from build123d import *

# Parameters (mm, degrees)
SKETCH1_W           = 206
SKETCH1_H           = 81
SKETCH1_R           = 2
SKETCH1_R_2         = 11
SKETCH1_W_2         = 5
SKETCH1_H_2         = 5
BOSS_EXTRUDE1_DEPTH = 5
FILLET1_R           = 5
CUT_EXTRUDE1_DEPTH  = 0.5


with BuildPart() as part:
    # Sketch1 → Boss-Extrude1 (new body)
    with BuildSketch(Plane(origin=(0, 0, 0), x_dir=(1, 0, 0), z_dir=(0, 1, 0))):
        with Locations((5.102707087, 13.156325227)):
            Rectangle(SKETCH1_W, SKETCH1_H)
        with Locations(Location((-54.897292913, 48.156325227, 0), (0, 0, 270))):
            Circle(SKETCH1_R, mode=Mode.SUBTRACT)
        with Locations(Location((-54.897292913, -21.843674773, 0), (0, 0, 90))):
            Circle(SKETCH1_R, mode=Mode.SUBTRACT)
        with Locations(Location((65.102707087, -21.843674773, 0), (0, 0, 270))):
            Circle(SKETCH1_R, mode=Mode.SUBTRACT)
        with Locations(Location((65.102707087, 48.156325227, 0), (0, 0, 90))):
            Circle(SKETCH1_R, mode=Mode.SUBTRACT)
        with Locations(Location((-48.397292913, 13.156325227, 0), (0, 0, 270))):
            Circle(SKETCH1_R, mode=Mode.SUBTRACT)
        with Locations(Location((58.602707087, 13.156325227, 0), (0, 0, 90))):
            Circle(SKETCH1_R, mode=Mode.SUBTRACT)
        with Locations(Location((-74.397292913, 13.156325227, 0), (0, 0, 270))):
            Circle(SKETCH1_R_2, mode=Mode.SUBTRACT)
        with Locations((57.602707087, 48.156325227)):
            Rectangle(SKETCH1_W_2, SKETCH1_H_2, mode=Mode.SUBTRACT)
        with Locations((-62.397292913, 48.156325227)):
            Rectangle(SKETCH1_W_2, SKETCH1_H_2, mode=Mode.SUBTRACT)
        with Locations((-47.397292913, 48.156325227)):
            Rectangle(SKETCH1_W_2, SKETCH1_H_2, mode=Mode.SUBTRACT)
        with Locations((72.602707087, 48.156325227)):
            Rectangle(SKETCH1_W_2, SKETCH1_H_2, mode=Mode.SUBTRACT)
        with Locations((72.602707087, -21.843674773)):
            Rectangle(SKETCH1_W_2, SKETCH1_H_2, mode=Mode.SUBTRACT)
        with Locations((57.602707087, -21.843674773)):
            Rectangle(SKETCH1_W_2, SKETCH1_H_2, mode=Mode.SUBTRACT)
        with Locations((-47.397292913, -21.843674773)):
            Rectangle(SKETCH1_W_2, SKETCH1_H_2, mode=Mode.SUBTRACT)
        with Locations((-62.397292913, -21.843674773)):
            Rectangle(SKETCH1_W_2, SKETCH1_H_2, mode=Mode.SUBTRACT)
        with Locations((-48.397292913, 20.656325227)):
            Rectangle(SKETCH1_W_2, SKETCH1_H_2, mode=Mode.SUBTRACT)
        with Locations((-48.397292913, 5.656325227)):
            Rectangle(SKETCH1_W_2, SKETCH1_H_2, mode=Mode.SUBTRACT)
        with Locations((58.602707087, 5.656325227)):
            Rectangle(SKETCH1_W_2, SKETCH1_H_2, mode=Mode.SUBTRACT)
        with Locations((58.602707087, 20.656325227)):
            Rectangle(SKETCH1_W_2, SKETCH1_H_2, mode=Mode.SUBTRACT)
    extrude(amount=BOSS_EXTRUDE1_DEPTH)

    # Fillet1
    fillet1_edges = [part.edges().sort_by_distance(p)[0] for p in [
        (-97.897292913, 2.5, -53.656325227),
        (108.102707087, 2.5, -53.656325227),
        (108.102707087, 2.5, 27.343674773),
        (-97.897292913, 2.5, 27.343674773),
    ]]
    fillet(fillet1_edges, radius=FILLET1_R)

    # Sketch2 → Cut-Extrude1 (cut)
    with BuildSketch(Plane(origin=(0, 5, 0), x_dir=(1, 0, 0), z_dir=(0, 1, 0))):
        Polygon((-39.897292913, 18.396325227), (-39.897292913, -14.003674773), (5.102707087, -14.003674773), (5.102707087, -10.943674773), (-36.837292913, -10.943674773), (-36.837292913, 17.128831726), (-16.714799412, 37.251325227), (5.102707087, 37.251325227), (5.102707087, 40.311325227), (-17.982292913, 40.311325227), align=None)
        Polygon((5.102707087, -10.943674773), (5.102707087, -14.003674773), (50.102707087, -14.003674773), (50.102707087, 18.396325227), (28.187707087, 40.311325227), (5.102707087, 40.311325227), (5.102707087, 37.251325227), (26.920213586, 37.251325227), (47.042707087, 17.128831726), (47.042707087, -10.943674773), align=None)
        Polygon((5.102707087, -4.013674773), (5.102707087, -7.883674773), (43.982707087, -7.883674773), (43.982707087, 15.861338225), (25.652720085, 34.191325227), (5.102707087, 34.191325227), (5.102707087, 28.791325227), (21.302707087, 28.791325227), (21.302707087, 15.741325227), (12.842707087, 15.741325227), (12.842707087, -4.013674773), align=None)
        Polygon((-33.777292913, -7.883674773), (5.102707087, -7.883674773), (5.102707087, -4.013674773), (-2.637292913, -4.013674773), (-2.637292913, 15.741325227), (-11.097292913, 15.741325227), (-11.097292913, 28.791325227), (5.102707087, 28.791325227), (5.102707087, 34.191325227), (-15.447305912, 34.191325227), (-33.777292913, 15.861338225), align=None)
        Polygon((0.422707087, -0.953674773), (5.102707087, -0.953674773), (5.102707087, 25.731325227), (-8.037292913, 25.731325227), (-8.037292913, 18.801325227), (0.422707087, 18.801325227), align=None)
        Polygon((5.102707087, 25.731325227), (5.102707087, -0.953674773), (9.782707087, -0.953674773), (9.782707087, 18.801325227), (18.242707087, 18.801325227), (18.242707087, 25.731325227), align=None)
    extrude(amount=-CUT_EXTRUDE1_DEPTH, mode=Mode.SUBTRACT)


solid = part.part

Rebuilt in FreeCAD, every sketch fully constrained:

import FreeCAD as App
import Part
import Sketcher
Q = App.Units.Quantity


def edges_at(feature, points):
    """Names of the edges that pass closest to the given points."""
    edges = feature.Shape.Edges
    near = lambda p: min(range(len(edges)), key=lambda i: edges[i].distToShape(Part.Vertex(*p))[0])
    return sorted({f"Edge{near(p) + 1}" for p in points})


def add_polygon(sketch, points):
    """Adds a closed chain of lines whose ends are joined by coincident constraints."""
    first, n = sketch.GeometryCount, len(points)
    for a, b in zip(points, points[1:] + points[:1]):
        sketch.addGeometry(Part.LineSegment(App.Vector(*a, 0), App.Vector(*b, 0)), False)
    for i in range(n):
        sketch.addConstraint(Sketcher.Constraint("Coincident", first + i, 2, first + (i + 1) % n, 1))

doc = App.newDocument("Part")
body = doc.addObject("PartDesign::Body", "Body")

# Sketch on XZ plane
sketch1 = body.newObject("Sketcher::SketchObject", "Sketch")
sketch1.AttachmentSupport = (doc.getObject("XZ_Plane"), [""])
sketch1.MapMode = "FlatFace"
add_polygon(sketch1, [(-97.9, -53.7), (-97.9, 27.3), (108.1, 27.3), (108.1, -53.7)])  # lines 0-3
add_polygon(sketch1, [(-59.9, 24.3), (-64.9, 24.3), (-64.9, 19.3), (-59.9, 19.3)])  # lines 4-7
sketch1.addGeometry(Part.Circle(App.Vector(-54.9, 21.8, 0), App.Vector(0, 0, 1), 2), False)  # 8
add_polygon(sketch1, [(-44.9, 24.3), (-49.9, 24.3), (-49.9, 19.3), (-44.9, 19.3)])  # lines 9-12
add_polygon(sketch1, [(-45.9, -3.2), (-50.9, -3.2), (-50.9, -8.2), (-45.9, -8.2)])  # lines 13-16
add_polygon(sketch1, [(60.1, 24.3), (55.1, 24.3), (55.1, 19.3), (60.1, 19.3)])  # lines 17-20
sketch1.addGeometry(Part.Circle(App.Vector(65.1, 21.8, 0), App.Vector(0, 0, 1), 2), False)  # 21
add_polygon(sketch1, [(75.1, 24.3), (70.1, 24.3), (70.1, 19.3), (75.1, 19.3)])  # lines 22-25
add_polygon(sketch1, [(61.1, -3.2), (56.1, -3.2), (56.1, -8.2), (61.1, -8.2)])  # lines 26-29
sketch1.addGeometry(Part.Circle(App.Vector(-74.4, -13.2, 0), App.Vector(0, 0, 1), 11), False)  # 30
sketch1.addGeometry(Part.Circle(App.Vector(-48.4, -13.2, 0), App.Vector(0, 0, 1), 2), False)  # 31
add_polygon(sketch1, [(-45.9, -18.2), (-50.9, -18.2), (-50.9, -23.2), (-45.9, -23.2)])  # lines 32-35
add_polygon(sketch1, [(-59.9, -45.7), (-64.9, -45.7), (-64.9, -50.7), (-59.9, -50.7)])  # lines 36-39
sketch1.addGeometry(Part.Circle(App.Vector(-54.9, -48.2, 0), App.Vector(0, 0, 1), 2), False)  # 40
add_polygon(sketch1, [(-44.9, -45.7), (-49.9, -45.7), (-49.9, -50.7), (-44.9, -50.7)])  # lines 41-44
sketch1.addGeometry(Part.Circle(App.Vector(58.6, -13.2, 0), App.Vector(0, 0, 1), 2), False)  # 45
add_polygon(sketch1, [(61.1, -18.2), (56.1, -18.2), (56.1, -23.2), (61.1, -23.2)])  # lines 46-49
add_polygon(sketch1, [(60.1, -45.7), (55.1, -45.7), (55.1, -50.7), (60.1, -50.7)])  # lines 50-53
sketch1.addGeometry(Part.Circle(App.Vector(65.1, -48.2, 0), App.Vector(0, 0, 1), 2), False)  # 54
add_polygon(sketch1, [(75.1, -45.7), (70.1, -45.7), (70.1, -50.7), (75.1, -50.7)])  # lines 55-58
sketch1.addConstraint([
    Sketcher.Constraint("Vertical", 0),
    Sketcher.Constraint("Horizontal", 1),
    Sketcher.Constraint("Vertical", 2),
    Sketcher.Constraint("Horizontal", 3),
    Sketcher.Constraint("Horizontal", 4),
    Sketcher.Constraint("Vertical", 5),
    Sketcher.Constraint("Horizontal", 6),
    Sketcher.Constraint("Vertical", 7),
    Sketcher.Constraint("Horizontal", 9),
    Sketcher.Constraint("Vertical", 10),
    Sketcher.Constraint("Horizontal", 11),
    Sketcher.Constraint("Vertical", 12),
    Sketcher.Constraint("Horizontal", 13),
    Sketcher.Constraint("Vertical", 14),
    Sketcher.Constraint("Horizontal", 15),
    Sketcher.Constraint("Vertical", 16),
    Sketcher.Constraint("Horizontal", 17),
    Sketcher.Constraint("Vertical", 18),
    Sketcher.Constraint("Horizontal", 19),
    Sketcher.Constraint("Vertical", 20),
    Sketcher.Constraint("Horizontal", 22),
    Sketcher.Constraint("Vertical", 23),
    Sketcher.Constraint("Horizontal", 24),
    Sketcher.Constraint("Vertical", 25),
    Sketcher.Constraint("Horizontal", 26),
    Sketcher.Constraint("Vertical", 27),
    Sketcher.Constraint("Horizontal", 28),
    Sketcher.Constraint("Vertical", 29),
    Sketcher.Constraint("Horizontal", 32),
    Sketcher.Constraint("Vertical", 33),
    Sketcher.Constraint("Horizontal", 34),
    Sketcher.Constraint("Vertical", 35),
    Sketcher.Constraint("Horizontal", 36),
    Sketcher.Constraint("Vertical", 37),
    Sketcher.Constraint("Horizontal", 38),
    Sketcher.Constraint("Vertical", 39),
    Sketcher.Constraint("Horizontal", 41),
    Sketcher.Constraint("Vertical", 42),
    Sketcher.Constraint("Horizontal", 43),
    Sketcher.Constraint("Vertical", 44),
    Sketcher.Constraint("Horizontal", 46),
    Sketcher.Constraint("Vertical", 47),
    Sketcher.Constraint("Horizontal", 48),
    Sketcher.Constraint("Vertical", 49),
    Sketcher.Constraint("Horizontal", 50),
    Sketcher.Constraint("Vertical", 51),
    Sketcher.Constraint("Horizontal", 52),
    Sketcher.Constraint("Vertical", 53),
    Sketcher.Constraint("Horizontal", 55),
    Sketcher.Constraint("Vertical", 56),
    Sketcher.Constraint("Horizontal", 57),
    Sketcher.Constraint("Vertical", 58),
    Sketcher.Constraint("Equal", 8, 21),
    Sketcher.Constraint("Equal", 21, 31),
    Sketcher.Constraint("Equal", 31, 40),
    Sketcher.Constraint("Equal", 40, 45),
    Sketcher.Constraint("Equal", 45, 54),
    Sketcher.Constraint("Horizontal", 8, 3, 21, 3),
    Sketcher.Constraint("Horizontal", 30, 3, 31, 3),
    Sketcher.Constraint("Horizontal", 31, 3, 45, 3),
    Sketcher.Constraint("Horizontal", 40, 3, 54, 3),
    Sketcher.Constraint("Horizontal", 7, 2, 9, 2),
    Sketcher.Constraint("Horizontal", 6, 2, 10, 2),
    Sketcher.Constraint("Horizontal", 12, 2, 17, 2),
    Sketcher.Constraint("Horizontal", 11, 2, 18, 2),
    Sketcher.Constraint("Horizontal", 20, 2, 22, 2),
    Sketcher.Constraint("Horizontal", 19, 2, 23, 2),
    Sketcher.Constraint("Horizontal", 16, 2, 26, 2),
    Sketcher.Constraint("Horizontal", 15, 2, 27, 2),
    Sketcher.Constraint("Horizontal", 39, 2, 41, 2),
    Sketcher.Constraint("Horizontal", 38, 2, 42, 2),
    Sketcher.Constraint("Horizontal", 35, 2, 46, 2),
    Sketcher.Constraint("Horizontal", 34, 2, 47, 2),
    Sketcher.Constraint("Horizontal", 44, 2, 50, 2),
    Sketcher.Constraint("Horizontal", 43, 2, 51, 2),
    Sketcher.Constraint("Horizontal", 53, 2, 55, 2),
    Sketcher.Constraint("Horizontal", 52, 2, 56, 2),
    Sketcher.Constraint("Vertical", 8, 3, 40, 3),
    Sketcher.Constraint("Vertical", 21, 3, 54, 3),
    Sketcher.Constraint("Vertical", 14, 2, 32, 2),
    Sketcher.Constraint("Vertical", 16, 2, 34, 2),
    Sketcher.Constraint("Vertical", 5, 2, 36, 2),
    Sketcher.Constraint("Vertical", 7, 2, 38, 2),
    Sketcher.Constraint("Vertical", 10, 2, 41, 2),
    Sketcher.Constraint("Vertical", 12, 2, 43, 2),
    Sketcher.Constraint("Vertical", 27, 2, 46, 2),
    Sketcher.Constraint("Vertical", 29, 2, 48, 2),
    Sketcher.Constraint("Vertical", 18, 2, 50, 2),
    Sketcher.Constraint("Vertical", 20, 2, 52, 2),
    Sketcher.Constraint("Vertical", 23, 2, 55, 2),
    Sketcher.Constraint("Vertical", 25, 2, 57, 2),
    Sketcher.Constraint("Equal", 6, 9),
    Sketcher.Constraint("Equal", 11, 13),
    Sketcher.Constraint("Equal", 15, 17),
    Sketcher.Constraint("Equal", 19, 22),
    Sketcher.Constraint("Equal", 24, 26),
    Sketcher.Constraint("Equal", 57, 5),
    Sketcher.Constraint("Equal", 12, 14),
    Sketcher.Constraint("Equal", 29, 33),
    Sketcher.Constraint("Equal", 35, 37),
    Sketcher.Constraint("Diameter", 8, Q("4 mm")),
    Sketcher.Constraint("Diameter", 30, Q("22 mm")),
    Sketcher.Constraint("DistanceX", 1, 1, 1, 2, Q("206 mm")),
    Sketcher.Constraint("DistanceX", 4, 2, 4, 1, Q("5 mm")),
    Sketcher.Constraint("DistanceY", 0, 1, 0, 2, Q("81 mm")),
    Sketcher.Constraint("DistanceX", 8, 3, 21, 3, Q("120 mm")),
    Sketcher.Constraint("DistanceY", 30, 3, 8, 3, Q("35 mm")),
    Sketcher.Constraint("DistanceX", 30, 3, 31, 3, Q("26 mm")),
    Sketcher.Constraint("DistanceY", 40, 3, 31, 3, Q("35 mm")),
    Sketcher.Constraint("DistanceX", 31, 3, 45, 3, Q("107 mm")),
    Sketcher.Constraint("DistanceX", 0, 2, 8, 3, Q("43 mm")),
    Sketcher.Constraint("DistanceX", 4, 2, 8, 3, Q("10 mm")),
    Sketcher.Constraint("DistanceY", 4, 2, 0, 2, Q("3 mm")),
    Sketcher.Constraint("DistanceX", 8, 3, 9, 2, Q("5 mm")),
    Sketcher.Constraint("DistanceY", 31, 3, 13, 2, Q("10 mm")),
    Sketcher.Constraint("DistanceX", 13, 2, 10, 2, Q("1 mm")),
    Sketcher.Constraint("DistanceX", 17, 2, 21, 3, Q("10 mm")),
    Sketcher.Constraint("DistanceX", 21, 3, 22, 2, Q("5 mm")),
    Sketcher.Constraint("DistanceX", 18, 2, 26, 2, Q("1 mm")),
    Sketcher.Constraint("DistanceY", 32, 2, 31, 3, Q("5 mm")),
    Sketcher.Constraint("DistanceY", 3, 2, 37, 2, Q("3 mm")),
    Sketcher.Constraint("DistanceX", 30, 3, 8, 3, Q("19.5 mm")),
    Sketcher.Constraint("DistanceY", 8, 3, 0, 2, Q("5.5 mm")),
    Sketcher.Constraint("DistanceX", 8, 3, -1, 1, Q("54.897293 mm")),
    Sketcher.Constraint("DistanceY", -1, 1, 8, 3, Q("21.843675 mm")),
])
pad1 = body.newObject("PartDesign::Pad", "Pad")
pad1.Profile = sketch1
pad1.Length = 5
pad1.Reversed = True
doc.recompute()

fillet = body.newObject("PartDesign::Fillet", "Fillet")
fillet.Base = (pad1, edges_at(pad1, [
    (-97.897, 2.5, -53.656),
    (108.103, 2.5, -53.656),
    (108.103, 2.5, 27.344),
    (-97.897, 2.5, 27.344),
]))
fillet.Radius = 5

# Sketch on XZ plane
sketch2 = body.newObject("Sketcher::SketchObject", "Sketch001")
sketch2.AttachmentSupport = (doc.getObject("XZ_Plane"), [""])
sketch2.MapMode = "FlatFace"
sketch2.AttachmentOffset = App.Placement(App.Vector(0, 0, -5), App.Rotation())
add_polygon(sketch2, [(-40, -18), (-40, 14), (50, 14), (50, -18), (28, -40), (-18, -40)])  # lines 0-5
add_polygon(sketch2, [(-37, 11), (-37, -17), (-17, -37), (27, -37), (47, -17), (47, 11)])  # lines 6-11
add_polygon(sketch2, [(44, 8), (44, -16), (26, -34), (-15, -34), (-34, -16), (-34, 8)])  # lines 12-17
add_polygon(sketch2, [(21, -29), (21, -16), (13, -16), (13, 4), (-3, 4), (-3, -16), (-11, -16), (-11, -29)])  # lines 18-25
add_polygon(sketch2, [(0, 1), (10, 1), (10, -19), (18, -19), (18, -26), (-8, -26), (-8, -19), (0, -19)])  # lines 26-33
sketch2.addConstraint([
    Sketcher.Constraint("Vertical", 0),
    Sketcher.Constraint("Horizontal", 1),
    Sketcher.Constraint("Vertical", 2),
    Sketcher.Constraint("Horizontal", 4),
    Sketcher.Constraint("Vertical", 6),
    Sketcher.Constraint("Horizontal", 8),
    Sketcher.Constraint("Vertical", 10),
    Sketcher.Constraint("Horizontal", 11),
    Sketcher.Constraint("Vertical", 12),
    Sketcher.Constraint("Horizontal", 14),
    Sketcher.Constraint("Vertical", 16),
    Sketcher.Constraint("Horizontal", 17),
    Sketcher.Constraint("Vertical", 18),
    Sketcher.Constraint("Horizontal", 19),
    Sketcher.Constraint("Vertical", 20),
    Sketcher.Constraint("Horizontal", 21),
    Sketcher.Constraint("Vertical", 22),
    Sketcher.Constraint("Horizontal", 23),
    Sketcher.Constraint("Vertical", 24),
    Sketcher.Constraint("Horizontal", 25),
    Sketcher.Constraint("Horizontal", 26),
    Sketcher.Constraint("Vertical", 27),
    Sketcher.Constraint("Horizontal", 28),
    Sketcher.Constraint("Vertical", 29),
    Sketcher.Constraint("Horizontal", 30),
    Sketcher.Constraint("Vertical", 31),
    Sketcher.Constraint("Horizontal", 32),
    Sketcher.Constraint("Vertical", 33),
    Sketcher.Constraint("Perpendicular", 3, 5),
    Sketcher.Constraint("Parallel", 5, 7),
    Sketcher.Constraint("Perpendicular", 7, 9),
    Sketcher.Constraint("Parallel", 9, 13),
    Sketcher.Constraint("Perpendicular", 13, 15),
    Sketcher.Constraint("Horizontal", 2, 2, 5, 2),
    Sketcher.Constraint("Horizontal", 6, 2, 9, 2),
    Sketcher.Constraint("Horizontal", 12, 2, 15, 2),
    Sketcher.Constraint("Horizontal", 19, 2, 22, 2),
    Sketcher.Constraint("Horizontal", 28, 2, 31, 2),
    Sketcher.Constraint("Equal", 19, 23),
    Sketcher.Constraint("Equal", 23, 28),
    Sketcher.Constraint("Equal", 28, 32),
    Sketcher.Constraint("Equal", 25, 0),
    Sketcher.Constraint("Equal", 22, 27),
    Sketcher.Constraint("Equal", 3, 5),
    Sketcher.Constraint("DistanceX", 1, 1, 1, 2, Q("90 mm")),
    Sketcher.Constraint("DistanceX", 25, 1, 25, 2, Q("32.4 mm")),
    Sketcher.Constraint("DistanceX", 4, 2, 4, 1, Q("46.17 mm")),
    Sketcher.Constraint("DistanceX", 11, 2, 11, 1, Q("83.88 mm")),
    Sketcher.Constraint("DistanceX", 17, 1, 17, 2, Q("77.76 mm")),
    Sketcher.Constraint("DistanceX", 19, 2, 19, 1, Q("8.46 mm")),
    Sketcher.Constraint("DistanceX", 26, 1, 26, 2, Q("9.36 mm")),
    Sketcher.Constraint("DistanceY", 18, 1, 18, 2, Q("13.05 mm")),
    Sketcher.Constraint("DistanceY", 29, 2, 29, 1, Q("6.93 mm")),
    Sketcher.Constraint("DistanceX", 20, 2, 10, 2, Q("34.2 mm")),
    Sketcher.Constraint("DistanceY", 14, 2, 24, 2, Q("5.4 mm")),
    Sketcher.Constraint("DistanceX", 19, 2, 28, 2, Q("5.4 mm")),
    Sketcher.Constraint("DistanceY", 20, 1, 20, 2, Q("19.755 mm")),
    Sketcher.Constraint("DistanceX", 5, 2, 6, 2, Q("3.06 mm")),
    Sketcher.Constraint("DistanceY", 4, 2, 7, 2, Q("3.06 mm")),
    Sketcher.Constraint("DistanceY", 10, 2, 1, 2, Q("3.06 mm")),
    Sketcher.Constraint("DistanceX", 12, 2, 9, 2, Q("3.06 mm")),
    Sketcher.Constraint("DistanceY", 8, 2, 13, 2, Q("3.06 mm")),
    Sketcher.Constraint("DistanceY", 16, 2, 11, 2, Q("3.06 mm")),
    Sketcher.Constraint("DistanceY", 26, 2, 20, 2, Q("3.06 mm")),
    Sketcher.Constraint("DistanceX", 7, 2, -1, 1, Q("16.714799 mm")),
    Sketcher.Constraint("DistanceX", 8, 1, 8, 2, Q("43.635013 mm")),
    Sketcher.Constraint("DistanceX", 14, 2, 14, 1, Q("41.100026 mm")),
    Sketcher.Constraint("DistanceY", 6, 2, -1, 1, Q("17.128832 mm")),
])
pocket1 = body.newObject("PartDesign::Pocket", "Pocket")
pocket1.Profile = sketch2
pocket1.Length = 0.5
pocket1.Reversed = True

doc.recompute()
